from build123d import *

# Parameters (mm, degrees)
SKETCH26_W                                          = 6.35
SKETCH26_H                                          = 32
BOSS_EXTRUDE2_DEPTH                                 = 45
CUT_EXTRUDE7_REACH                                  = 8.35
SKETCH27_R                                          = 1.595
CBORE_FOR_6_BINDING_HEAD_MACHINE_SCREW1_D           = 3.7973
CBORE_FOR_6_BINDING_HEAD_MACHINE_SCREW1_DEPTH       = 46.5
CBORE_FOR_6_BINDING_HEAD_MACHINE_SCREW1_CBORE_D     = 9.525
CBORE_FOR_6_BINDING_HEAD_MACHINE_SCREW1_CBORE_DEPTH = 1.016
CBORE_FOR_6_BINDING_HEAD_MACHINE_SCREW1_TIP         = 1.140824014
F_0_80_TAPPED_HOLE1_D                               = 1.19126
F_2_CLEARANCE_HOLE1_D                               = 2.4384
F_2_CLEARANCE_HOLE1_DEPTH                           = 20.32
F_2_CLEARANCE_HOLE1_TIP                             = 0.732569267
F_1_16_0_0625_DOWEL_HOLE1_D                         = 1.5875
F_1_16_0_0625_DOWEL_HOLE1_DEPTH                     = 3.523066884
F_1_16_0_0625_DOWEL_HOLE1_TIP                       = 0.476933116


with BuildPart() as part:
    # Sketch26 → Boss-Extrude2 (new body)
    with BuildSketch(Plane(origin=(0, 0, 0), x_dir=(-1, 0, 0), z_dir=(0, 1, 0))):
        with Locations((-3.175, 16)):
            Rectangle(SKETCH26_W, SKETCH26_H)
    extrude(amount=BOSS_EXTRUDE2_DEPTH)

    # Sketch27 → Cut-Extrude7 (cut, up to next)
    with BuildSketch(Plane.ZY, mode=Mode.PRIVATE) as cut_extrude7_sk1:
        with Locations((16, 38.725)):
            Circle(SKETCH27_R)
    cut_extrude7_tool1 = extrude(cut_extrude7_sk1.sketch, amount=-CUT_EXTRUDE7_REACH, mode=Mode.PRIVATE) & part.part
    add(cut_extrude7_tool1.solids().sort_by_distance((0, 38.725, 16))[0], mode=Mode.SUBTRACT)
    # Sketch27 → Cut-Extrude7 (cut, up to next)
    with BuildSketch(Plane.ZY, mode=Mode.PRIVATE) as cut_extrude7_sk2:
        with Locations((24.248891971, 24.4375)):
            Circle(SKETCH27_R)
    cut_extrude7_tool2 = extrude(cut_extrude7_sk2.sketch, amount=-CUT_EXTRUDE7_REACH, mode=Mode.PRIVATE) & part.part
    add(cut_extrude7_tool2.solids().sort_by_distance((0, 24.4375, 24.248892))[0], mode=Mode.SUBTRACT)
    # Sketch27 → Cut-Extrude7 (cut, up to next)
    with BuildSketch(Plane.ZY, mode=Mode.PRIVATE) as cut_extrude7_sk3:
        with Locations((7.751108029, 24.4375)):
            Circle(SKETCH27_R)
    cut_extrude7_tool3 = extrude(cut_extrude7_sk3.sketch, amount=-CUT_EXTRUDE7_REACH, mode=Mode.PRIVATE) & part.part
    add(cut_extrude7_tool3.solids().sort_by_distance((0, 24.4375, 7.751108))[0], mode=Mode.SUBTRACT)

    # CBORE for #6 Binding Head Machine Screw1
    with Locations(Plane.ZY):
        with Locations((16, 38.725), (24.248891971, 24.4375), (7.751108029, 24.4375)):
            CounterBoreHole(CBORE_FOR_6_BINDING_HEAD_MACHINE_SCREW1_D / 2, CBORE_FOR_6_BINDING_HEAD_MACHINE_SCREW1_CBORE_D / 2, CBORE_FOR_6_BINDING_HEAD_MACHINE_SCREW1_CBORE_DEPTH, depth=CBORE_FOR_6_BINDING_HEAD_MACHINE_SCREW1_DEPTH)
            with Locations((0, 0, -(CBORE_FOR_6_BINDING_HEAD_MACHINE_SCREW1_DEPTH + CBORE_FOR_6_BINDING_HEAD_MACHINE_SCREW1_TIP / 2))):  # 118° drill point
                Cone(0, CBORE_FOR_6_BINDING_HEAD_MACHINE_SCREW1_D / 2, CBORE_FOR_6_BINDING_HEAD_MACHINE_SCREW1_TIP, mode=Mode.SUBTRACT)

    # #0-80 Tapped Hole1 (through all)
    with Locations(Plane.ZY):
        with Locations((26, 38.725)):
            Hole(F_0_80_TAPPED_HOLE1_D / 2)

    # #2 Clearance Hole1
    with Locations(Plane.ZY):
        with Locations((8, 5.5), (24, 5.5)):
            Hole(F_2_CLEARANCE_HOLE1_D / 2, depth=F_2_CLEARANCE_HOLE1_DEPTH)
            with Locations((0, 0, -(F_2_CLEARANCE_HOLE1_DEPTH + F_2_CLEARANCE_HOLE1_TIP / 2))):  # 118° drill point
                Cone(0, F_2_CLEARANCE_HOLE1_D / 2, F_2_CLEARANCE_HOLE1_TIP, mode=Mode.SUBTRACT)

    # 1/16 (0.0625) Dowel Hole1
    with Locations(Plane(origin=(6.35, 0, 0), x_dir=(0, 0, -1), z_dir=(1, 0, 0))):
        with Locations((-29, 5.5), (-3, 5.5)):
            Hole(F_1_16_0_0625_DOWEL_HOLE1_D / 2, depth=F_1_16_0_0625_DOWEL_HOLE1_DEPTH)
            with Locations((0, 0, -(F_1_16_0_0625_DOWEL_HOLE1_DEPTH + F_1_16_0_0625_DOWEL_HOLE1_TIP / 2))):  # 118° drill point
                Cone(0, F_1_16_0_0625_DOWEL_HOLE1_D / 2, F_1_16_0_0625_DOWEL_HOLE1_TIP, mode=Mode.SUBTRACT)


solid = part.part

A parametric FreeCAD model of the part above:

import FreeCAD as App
import Part
import Sketcher
Q = App.Units.Quantity


def add_polygon(sketch, points):
    """Adds a closed chain of lines whose ends are joined by coincident constraints."""
    first, n = sketch.GeometryCount, len(points)
    for a, b in zip(points, points[1:] + points[:1]):
        sketch.addGeometry(Part.LineSegment(App.Vector(*a, 0), App.Vector(*b, 0)), False)
    for i in range(n):
        sketch.addConstraint(Sketcher.Constraint("Coincident", first + i, 2, first + (i + 1) % n, 1))

doc = App.newDocument("Part")
body = doc.addObject("PartDesign::Body", "Body")

# Sketch on XZ plane
sketch1 = body.newObject("Sketcher::SketchObject", "Sketch")
sketch1.AttachmentSupport = (doc.getObject("XZ_Plane"), [""])
sketch1.MapMode = "FlatFace"
add_polygon(sketch1, [(6.35, 32), (6.35, 0), (0, 0), (0, 32)])  # lines 0-3
sketch1.addConstraint([
    Sketcher.Constraint("Vertical", 0),
    Sketcher.Constraint("Horizontal", 1),
    Sketcher.Constraint("Vertical", 2),
    Sketcher.Constraint("Horizontal", 3),
    Sketcher.Constraint("Coincident", 1, 2, -1, 1),
    Sketcher.Constraint("DistanceX", 1, 2, 1, 1, Q("0.25 in")),
    Sketcher.Constraint("DistanceY", 0, 2, 0, 1, 32.0),
])
pad1 = body.newObject("PartDesign::Pad", "Pad")
pad1.Profile = sketch1
pad1.Length = 45
pad1.Reversed = True

# Sketch on YZ plane
sketch2 = body.newObject("Sketcher::SketchObject", "Sketch001")
sketch2.AttachmentSupport = (doc.getObject("YZ_Plane"), [""])
sketch2.MapMode = "FlatFace"
sketch2.addGeometry(Part.Circle(App.Vector(38.725, 16, 0), App.Vector(0, 0, 1), 1.595), False)
sketch2.addConstraint([
    Sketcher.Constraint("Diameter", 0, 3.19),
    Sketcher.Constraint("DistanceX", -1, 1, 0, 3, 38.725),
    Sketcher.Constraint("DistanceY", -1, 1, 0, 3, 16.0),
])
pocket1 = body.newObject("PartDesign::Pocket", "Pocket")
pocket1.Profile = sketch2
pocket1.Type = "UpToFirst"
pocket1.Reversed = True

# Sketch on YZ plane
sketch3 = body.newObject("Sketcher::SketchObject", "Sketch002")
sketch3.AttachmentSupport = (doc.getObject("YZ_Plane"), [""])
sketch3.MapMode = "FlatFace"
sketch3.addGeometry(Part.Circle(App.Vector(24.4375, 24.248892, 0), App.Vector(0, 0, 1), 1.595), False)
sketch3.addConstraint([
    Sketcher.Constraint("Diameter", 0, 3.19),
    Sketcher.Constraint("DistanceX", -1, 1, 0, 3, 24.4375),
    Sketcher.Constraint("DistanceY", -1, 1, 0, 3, 24.248892),
])
pocket2 = body.newObject("PartDesign::Pocket", "Pocket001")
pocket2.Profile = sketch3
pocket2.Type = "UpToFirst"
pocket2.Reversed = True

# Sketch on YZ plane
sketch4 = body.newObject("Sketcher::SketchObject", "Sketch003")
sketch4.AttachmentSupport = (doc.getObject("YZ_Plane"), [""])
sketch4.MapMode = "FlatFace"
sketch4.addGeometry(Part.Circle(App.Vector(24.4375, 7.751108, 0), App.Vector(0, 0, 1), 1.595), False)
sketch4.addConstraint([
    Sketcher.Constraint("Diameter", 0, 3.19),
    Sketcher.Constraint("DistanceX", -1, 1, 0, 3, 24.4375),
    Sketcher.Constraint("DistanceY", -1, 1, 0, 3, 7.751108),
])
pocket3 = body.newObject("PartDesign::Pocket", "Pocket002")
pocket3.Profile = sketch4
pocket3.Type = "UpToFirst"
pocket3.Reversed = True

# Sketch on YZ plane
sketch5 = body.newObject("Sketcher::SketchObject", "Sketch004")
sketch5.AttachmentSupport = (doc.getObject("YZ_Plane"), [""])
sketch5.MapMode = "FlatFace"
sketch5.addGeometry([
    Part.Circle(App.Vector(38.725, 16, 0), App.Vector(0, 0, 1), 1.89865),
    Part.Circle(App.Vector(24.4375, 24.248892, 0), App.Vector(0, 0, 1), 1.89865),
    Part.Circle(App.Vector(24.4375, 7.751108, 0), App.Vector(0, 0, 1), 1.89865),
], False)
sketch5.addConstraint([
    Sketcher.Constraint("Equal", 0, 1),
    Sketcher.Constraint("Equal", 1, 2),
    Sketcher.Constraint("Vertical", 1, 3, 2, 3),
    Sketcher.Constraint("Diameter", 0, Q("0.1495 in")),
    Sketcher.Constraint("DistanceX", 1, 3, 0, 3, Q("0.5625 in")),
    Sketcher.Constraint("DistanceX", -1, 1, 0, 3, 38.725),
    Sketcher.Constraint("DistanceY", -1, 1, 0, 3, 16.0),
    Sketcher.Constraint("DistanceY", -1, 1, 1, 3, 24.248892),
    Sketcher.Constraint("DistanceY", -1, 1, 2, 3, 7.751108),
])
doc.recompute()
hole = body.newObject("PartDesign::Hole", "Hole")
hole.Profile = sketch5
hole.ThreadType = "None"
hole.Diameter = Q("0.1495 in")
hole.DepthType = "Dimension"
hole.Depth = 46.5
hole.DrillPoint = "Angled"
hole.DrillPointAngle = 118
hole.HoleCutType = "Counterbore"
hole.HoleCutDiameter = Q("0.375 in")
hole.HoleCutDepth = Q("0.04 in")
hole.Reversed = True

# Sketch on YZ plane
sketch6 = body.newObject("Sketcher::SketchObject", "Sketch005")
sketch6.AttachmentSupport = (doc.getObject("YZ_Plane"), [""])
sketch6.MapMode = "FlatFace"
sketch6.addGeometry(Part.Circle(App.Vector(38.725, 26, 0), App.Vector(0, 0, 1), 0.59563), False)
sketch6.addConstraint([
    Sketcher.Constraint("Diameter", 0, Q("0.0469 in")),
    Sketcher.Constraint("DistanceX", -1, 1, 0, 3, 38.725),
    Sketcher.Constraint("DistanceY", -1, 1, 0, 3, 26.0),
])
doc.recompute()
hole2 = body.newObject("PartDesign::Hole", "Hole001")
hole2.Profile = sketch6
hole2.ThreadType = "None"
hole2.Diameter = Q("0.0469 in")
hole2.DepthType = "ThroughAll"
hole2.Reversed = True

# Sketch on YZ plane
sketch7 = body.newObject("Sketcher::SketchObject", "Sketch006")
sketch7.AttachmentSupport = (doc.getObject("YZ_Plane"), [""])
sketch7.MapMode = "FlatFace"
sketch7.addGeometry([
    Part.Circle(App.Vector(5.5, 8, 0), App.Vector(0, 0, 1), 1.2192),
    Part.Circle(App.Vector(5.5, 24, 0), App.Vector(0, 0, 1), 1.2192),
], False)
sketch7.addConstraint([
    Sketcher.Constraint("Equal", 0, 1),
    Sketcher.Constraint("Vertical", 0, 3, 1, 3),
    Sketcher.Constraint("Diameter", 0, Q("0.096 in")),
    Sketcher.Constraint("DistanceX", -1, 1, 0, 3, 5.5),
    Sketcher.Constraint("DistanceY", -1, 1, 0, 3, 8.0),
    Sketcher.Constraint("DistanceY", -1, 1, 1, 3, 24.0),
])
doc.recompute()
hole3 = body.newObject("PartDesign::Hole", "Hole002")
hole3.Profile = sketch7
hole3.ThreadType = "None"
hole3.Diameter = Q("0.096 in")
hole3.DepthType = "Dimension"
hole3.Depth = Q("0.8 in")
hole3.DrillPoint = "Angled"
hole3.DrillPointAngle = 118
hole3.Reversed = True

# Sketch on YZ plane
sketch8 = body.newObject("Sketcher::SketchObject", "Sketch007")
sketch8.AttachmentSupport = (doc.getObject("YZ_Plane"), [""])
sketch8.MapMode = "FlatFace"
sketch8.AttachmentOffset = App.Placement(App.Vector(0, 0, 0.25 * 25.4), App.Rotation())
sketch8.addGeometry([
    Part.Circle(App.Vector(5.5, 29, 0), App.Vector(0, 0, 1), 0.79375),
    Part.Circle(App.Vector(5.5, 3, 0), App.Vector(0, 0, 1), 0.79375),
], False)
sketch8.addConstraint([
    Sketcher.Constraint("Equal", 0, 1),
    Sketcher.Constraint("Vertical", 0, 3, 1, 3),
    Sketcher.Constraint("Diameter", 0, Q("0.0625 in")),
    Sketcher.Constraint("DistanceX", -1, 1, 0, 3, 5.5),
    Sketcher.Constraint("DistanceY", -1, 1, 0, 3, 29.0),
    Sketcher.Constraint("DistanceY", -1, 1, 1, 3, 3.0),
])
doc.recompute()
hole4 = body.newObject("PartDesign::Hole", "Hole003")
hole4.Profile = sketch8
hole4.ThreadType = "None"
hole4.Diameter = Q("0.0625 in")
hole4.DepthType = "Dimension"
hole4.Depth = 3.523067
hole4.DrillPoint = "Angled"
hole4.DrillPointAngle = 118

doc.recompute()
